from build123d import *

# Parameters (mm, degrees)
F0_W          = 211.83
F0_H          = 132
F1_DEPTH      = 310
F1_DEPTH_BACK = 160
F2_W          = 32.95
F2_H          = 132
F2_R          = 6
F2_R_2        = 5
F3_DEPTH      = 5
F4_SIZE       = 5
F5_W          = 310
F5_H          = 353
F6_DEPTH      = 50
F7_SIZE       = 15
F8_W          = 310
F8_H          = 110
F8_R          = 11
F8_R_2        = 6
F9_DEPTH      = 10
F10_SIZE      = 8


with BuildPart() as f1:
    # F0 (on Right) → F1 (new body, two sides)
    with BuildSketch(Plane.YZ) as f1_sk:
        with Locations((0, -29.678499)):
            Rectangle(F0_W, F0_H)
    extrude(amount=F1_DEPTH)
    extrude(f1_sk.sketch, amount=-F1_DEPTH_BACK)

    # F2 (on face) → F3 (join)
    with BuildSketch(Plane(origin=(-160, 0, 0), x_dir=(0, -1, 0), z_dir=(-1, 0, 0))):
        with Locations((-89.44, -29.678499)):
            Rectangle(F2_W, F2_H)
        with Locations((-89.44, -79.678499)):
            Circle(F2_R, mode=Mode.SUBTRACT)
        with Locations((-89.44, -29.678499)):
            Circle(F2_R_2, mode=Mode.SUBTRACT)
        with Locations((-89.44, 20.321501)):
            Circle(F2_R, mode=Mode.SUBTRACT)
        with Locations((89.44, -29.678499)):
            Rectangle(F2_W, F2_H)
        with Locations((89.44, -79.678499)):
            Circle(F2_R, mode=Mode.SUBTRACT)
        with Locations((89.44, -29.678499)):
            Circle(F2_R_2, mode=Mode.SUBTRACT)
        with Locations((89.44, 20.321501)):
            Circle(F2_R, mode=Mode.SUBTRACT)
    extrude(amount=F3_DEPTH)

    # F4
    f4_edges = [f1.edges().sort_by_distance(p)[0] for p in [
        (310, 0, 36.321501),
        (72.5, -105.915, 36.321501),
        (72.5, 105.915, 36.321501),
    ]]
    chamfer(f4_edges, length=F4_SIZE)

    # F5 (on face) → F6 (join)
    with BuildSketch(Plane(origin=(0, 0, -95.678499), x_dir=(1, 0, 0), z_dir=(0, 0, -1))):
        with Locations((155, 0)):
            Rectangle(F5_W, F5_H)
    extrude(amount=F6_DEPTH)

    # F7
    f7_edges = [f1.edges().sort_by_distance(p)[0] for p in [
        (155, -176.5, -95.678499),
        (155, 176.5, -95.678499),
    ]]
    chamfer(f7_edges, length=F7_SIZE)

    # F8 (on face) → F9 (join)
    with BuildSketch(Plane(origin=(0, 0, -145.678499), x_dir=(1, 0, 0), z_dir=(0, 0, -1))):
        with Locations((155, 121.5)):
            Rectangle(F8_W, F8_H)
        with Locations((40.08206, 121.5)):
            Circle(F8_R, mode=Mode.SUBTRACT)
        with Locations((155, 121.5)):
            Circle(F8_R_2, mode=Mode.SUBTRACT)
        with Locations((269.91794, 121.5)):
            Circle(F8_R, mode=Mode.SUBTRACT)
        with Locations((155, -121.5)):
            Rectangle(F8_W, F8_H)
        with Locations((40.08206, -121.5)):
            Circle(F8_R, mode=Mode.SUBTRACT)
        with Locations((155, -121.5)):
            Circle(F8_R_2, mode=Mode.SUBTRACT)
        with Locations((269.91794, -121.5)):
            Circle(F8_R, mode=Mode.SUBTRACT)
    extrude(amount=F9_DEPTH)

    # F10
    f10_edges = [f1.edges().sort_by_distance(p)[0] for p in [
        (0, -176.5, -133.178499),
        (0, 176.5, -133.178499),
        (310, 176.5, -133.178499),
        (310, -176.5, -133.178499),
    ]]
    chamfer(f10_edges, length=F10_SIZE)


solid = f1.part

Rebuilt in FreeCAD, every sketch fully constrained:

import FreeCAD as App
import Part
import Sketcher

V = App.Vector


def edges_at(feature, points):
    """Names of the edges that pass closest to the given points."""
    edges = feature.Shape.Edges
    near = lambda p: min(range(len(edges)), key=lambda i: edges[i].distToShape(Part.Vertex(*p))[0])
    return sorted({f"Edge{near(p) + 1}" for p in points})

doc = App.newDocument("Part")
body = doc.addObject("PartDesign::Body", "Body")

# Sketch on YZ plane
sketch1 = body.newObject("Sketcher::SketchObject", "Sketch")
sketch1.AttachmentSupport = (doc.getObject("YZ_Plane"), [""])
sketch1.MapMode = "FlatFace"
sketch1.addGeometry([
    Part.LineSegment(V(-105.915, 36.321501, 0), V(-105.915, -95.678499, 0)),
    Part.LineSegment(V(-105.915, -95.678499, 0), V(105.915, -95.678499, 0)),
    Part.LineSegment(V(105.915, -95.678499, 0), V(105.915, 36.321501, 0)),
    Part.LineSegment(V(105.915, 36.321501, 0), V(-105.915, 36.321501, 0)),
], False)
sketch1.addConstraint([
    Sketcher.Constraint("Coincident", 0, 2, 1, 1),
    Sketcher.Constraint("Coincident", 1, 2, 2, 1),
    Sketcher.Constraint("Coincident", 2, 2, 3, 1),
    Sketcher.Constraint("Coincident", 3, 2, 0, 1),
    Sketcher.Constraint("Vertical", 0),
    Sketcher.Constraint("Horizontal", 1),
    Sketcher.Constraint("Vertical", 2),
    Sketcher.Constraint("Horizontal", 3),
    Sketcher.Constraint("DistanceY", 0, 2, 0, 1, 132.0),
    Sketcher.Constraint("DistanceX", 1, 1, 1, 2, 211.83),
    Sketcher.Constraint("DistanceX", 0, 2, -1, 1, 105.915),
    Sketcher.Constraint("DistanceY", 0, 2, -1, 1, 95.678499),
])
pad1 = body.newObject("PartDesign::Pad", "Pad")
pad1.Profile = sketch1
pad1.Type = "TwoLengths"
pad1.Length = 310
pad1.Length2 = 160

# Sketch on YZ plane
sketch2 = body.newObject("Sketcher::SketchObject", "Sketch001")
sketch2.AttachmentSupport = (doc.getObject("YZ_Plane"), [""])
sketch2.MapMode = "FlatFace"
sketch2.AttachmentOffset = App.Placement(V(0, 0, -160), App.Rotation())
sketch2.addGeometry([
    Part.LineSegment(V(105.915, 36.321501, 0), V(105.915, -95.678499, 0)),  # 0
    Part.LineSegment(V(105.915, -95.678499, 0), V(72.965, -95.678499, 0)),  # 1
    Part.LineSegment(V(72.965, -95.678499, 0), V(72.965, 36.321501, 0)),  # 2
    Part.LineSegment(V(72.965, 36.321501, 0), V(105.915, 36.321501, 0)),  # 3
    Part.Circle(V(89.44, -79.678499, 0), V(0, 0, 1), 6),  # 4
    Part.Circle(V(89.44, -29.678499, 0), V(0, 0, 1), 5),  # 5
    Part.Circle(V(89.44, 20.321501, 0), V(0, 0, 1), 6),  # 6
    Part.LineSegment(V(-72.965, 36.321501, 0), V(-72.965, -95.678499, 0)),  # 7
    Part.LineSegment(V(-72.965, -95.678499, 0), V(-105.915, -95.678499, 0)),  # 8
    Part.LineSegment(V(-105.915, -95.678499, 0), V(-105.915, 36.321501, 0)),  # 9
    Part.LineSegment(V(-105.915, 36.321501, 0), V(-72.965, 36.321501, 0)),  # 10
    Part.Circle(V(-89.44, -79.678499, 0), V(0, 0, 1), 6),  # 11
    Part.Circle(V(-89.44, -29.678499, 0), V(0, 0, 1), 5),  # 12
    Part.Circle(V(-89.44, 20.321501, 0), V(0, 0, 1), 6),  # 13
], False)
sketch2.addConstraint([
    Sketcher.Constraint("Coincident", 0, 2, 1, 1),
    Sketcher.Constraint("Coincident", 1, 2, 2, 1),
    Sketcher.Constraint("Coincident", 2, 2, 3, 1),
    Sketcher.Constraint("Coincident", 3, 2, 0, 1),
    Sketcher.Constraint("Coincident", 7, 2, 8, 1),
    Sketcher.Constraint("Coincident", 8, 2, 9, 1),
    Sketcher.Constraint("Coincident", 9, 2, 10, 1),
    Sketcher.Constraint("Coincident", 10, 2, 7, 1),
    Sketcher.Constraint("Vertical", 0),
    Sketcher.Constraint("Horizontal", 1),
    Sketcher.Constraint("Vertical", 2),
    Sketcher.Constraint("Horizontal", 3),
    Sketcher.Constraint("Vertical", 7),
    Sketcher.Constraint("Horizontal", 8),
    Sketcher.Constraint("Vertical", 9),
    Sketcher.Constraint("Horizontal", 10),
    Sketcher.Constraint("Equal", 4, 6),
    Sketcher.Constraint("Equal", 6, 11),
    Sketcher.Constraint("Equal", 5, 12),
    Sketcher.Constraint("Equal", 11, 13),
    Sketcher.Constraint("Symmetric", 4, 3, 11, 3, -2),
    Sketcher.Constraint("Symmetric", 5, 3, 12, 3, -2),
    Sketcher.Constraint("Symmetric", 6, 3, 13, 3, -2),
    Sketcher.Constraint("Symmetric", 1, 2, 7, 2, -2),
    Sketcher.Constraint("Symmetric", 3, 2, 9, 2, -2),
    Sketcher.Constraint("Vertical", 4, 3, 5, 3),
    Sketcher.Constraint("Vertical", 5, 3, 6, 3),
    Sketcher.Constraint("Diameter", 4, 12.0),
    Sketcher.Constraint("Diameter", 5, 10.0),
    Sketcher.Constraint("DistanceY", 0, 2, 0, 1, 132.0),
    Sketcher.Constraint("DistanceY", 4, 3, 5, 3, 50.0),
    Sketcher.Constraint("DistanceY", 5, 3, 6, 3, 50.0),
    Sketcher.Constraint("DistanceY", 0, 2, 4, 3, 16.0),
    Sketcher.Constraint("DistanceX", 1, 2, 1, 1, 32.95),
    Sketcher.Constraint("DistanceX", -1, 1, 4, 3, 89.44),
    Sketcher.Constraint("DistanceX", 7, 2, 1, 2, 145.93),
    Sketcher.Constraint("DistanceY", 4, 3, -1, 1, 79.678499),
])
pad2 = body.newObject("PartDesign::Pad", "Pad001")
pad2.Profile = sketch2
pad2.Length = 5
pad2.Reversed = True
doc.recompute()

chamfer = body.newObject("PartDesign::Chamfer", "Chamfer")
chamfer.Base = (pad2, edges_at(pad2, [(310, 0, 36.322), (72.5, -105.915, 36.322), (72.5, 105.915, 36.322)]))
chamfer.Size = 5

# Sketch on XY plane
sketch3 = body.newObject("Sketcher::SketchObject", "Sketch002")
sketch3.AttachmentSupport = (doc.getObject("XY_Plane"), [""])
sketch3.MapMode = "FlatFace"
sketch3.AttachmentOffset = App.Placement(V(0, 0, -95.678499), App.Rotation())
sketch3.addGeometry([
    Part.LineSegment(V(0, -176.5, 0), V(0, 176.5, 0)),
    Part.LineSegment(V(0, 176.5, 0), V(310, 176.5, 0)),
    Part.LineSegment(V(310, 176.5, 0), V(310, -176.5, 0)),
    Part.LineSegment(V(310, -176.5, 0), V(0, -176.5, 0)),
], False)
sketch3.addConstraint([
    Sketcher.Constraint("Coincident", 0, 2, 1, 1),
    Sketcher.Constraint("Coincident", 1, 2, 2, 1),
    Sketcher.Constraint("Coincident", 2, 2, 3, 1),
    Sketcher.Constraint("Coincident", 3, 2, 0, 1),
    Sketcher.Constraint("Vertical", 0),
    Sketcher.Constraint("Horizontal", 1),
    Sketcher.Constraint("Vertical", 2),
    Sketcher.Constraint("Horizontal", 3),
    Sketcher.Constraint("Symmetric", 0, 2, 3, 2, -1, 1),
    Sketcher.Constraint("DistanceX", 1, 1, 1, 2, 310.0),
    Sketcher.Constraint("DistanceY", 0, 1, 0, 2, 353.0),
])
pad3 = body.newObject("PartDesign::Pad", "Pad002")
pad3.Profile = sketch3
pad3.Length = 50
pad3.Reversed = True
doc.recompute()

chamfer2 = body.newObject("PartDesign::Chamfer", "Chamfer001")
chamfer2.Base = (pad3, edges_at(pad3, [(155, -176.5, -95.678), (155, 176.5, -95.678)]))
chamfer2.Size = 15

# Sketch on XY plane
sketch4 = body.newObject("Sketcher::SketchObject", "Sketch003")
sketch4.AttachmentSupport = (doc.getObject("XY_Plane"), [""])
sketch4.MapMode = "FlatFace"
sketch4.AttachmentOffset = App.Placement(V(0, 0, -145.678499), App.Rotation())
sketch4.addGeometry([
    Part.LineSegment(V(0, -176.5, 0), V(0, -66.5, 0)),  # 0
    Part.LineSegment(V(0, -66.5, 0), V(310, -66.5, 0)),  # 1
    Part.LineSegment(V(310, -66.5, 0), V(310, -176.5, 0)),  # 2
    Part.LineSegment(V(310, -176.5, 0), V(0, -176.5, 0)),  # 3
    Part.Circle(V(40.08206, -121.5, 0), V(0, 0, 1), 11),  # 4
    Part.Circle(V(155, -121.5, 0), V(0, 0, 1), 6),  # 5
    Part.Circle(V(269.91794, -121.5, 0), V(0, 0, 1), 11),  # 6
    Part.LineSegment(V(0, 66.5, 0), V(0, 176.5, 0)),  # 7
    Part.LineSegment(V(0, 176.5, 0), V(310, 176.5, 0)),  # 8
    Part.LineSegment(V(310, 176.5, 0), V(310, 66.5, 0)),  # 9
    Part.LineSegment(V(310, 66.5, 0), V(0, 66.5, 0)),  # 10
    Part.Circle(V(40.08206, 121.5, 0), V(0, 0, 1), 11),  # 11
    Part.Circle(V(155, 121.5, 0), V(0, 0, 1), 6),  # 12
    Part.Circle(V(269.91794, 121.5, 0), V(0, 0, 1), 11),  # 13
], False)
sketch4.addConstraint([
    Sketcher.Constraint("Coincident", 0, 2, 1, 1),
    Sketcher.Constraint("Coincident", 1, 2, 2, 1),
    Sketcher.Constraint("Coincident", 2, 2, 3, 1),
    Sketcher.Constraint("Coincident", 3, 2, 0, 1),
    Sketcher.Constraint("Coincident", 7, 2, 8, 1),
    Sketcher.Constraint("Coincident", 8, 2, 9, 1),
    Sketcher.Constraint("Coincident", 9, 2, 10, 1),
    Sketcher.Constraint("Coincident", 10, 2, 7, 1),
    Sketcher.Constraint("Vertical", 0),
    Sketcher.Constraint("Horizontal", 1),
    Sketcher.Constraint("Vertical", 2),
    Sketcher.Constraint("Horizontal", 3),
    Sketcher.Constraint("Vertical", 7),
    Sketcher.Constraint("Horizontal", 8),
    Sketcher.Constraint("Vertical", 9),
    Sketcher.Constraint("Horizontal", 10),
    Sketcher.Constraint("Equal", 4, 6),
    Sketcher.Constraint("Equal", 6, 11),
    Sketcher.Constraint("Equal", 5, 12),
    Sketcher.Constraint("Equal", 11, 13),
    Sketcher.Constraint("Symmetric", 3, 2, 7, 2, -1, 1),
    Sketcher.Constraint("Symmetric", 4, 3, 11, 3, -1),
    Sketcher.Constraint("Symmetric", 5, 3, 12, 3, -1),
    Sketcher.Constraint("Symmetric", 6, 3, 13, 3, -1),
    Sketcher.Constraint("Symmetric", 1, 2, 9, 2, -1),
    Sketcher.Constraint("PointOnObject", 0, 2, -2),
    Sketcher.Constraint("Horizontal", 4, 3, 5, 3),
    Sketcher.Constraint("Horizontal", 5, 3, 6, 3),
    Sketcher.Constraint("Diameter", 4, 22.0),
    Sketcher.Constraint("Diameter", 5, 12.0),
    Sketcher.Constraint("DistanceX", 1, 1, 1, 2, 310.0),
    Sketcher.Constraint("DistanceY", 0, 1, 0, 2, 110.0),
    Sketcher.Constraint("DistanceX", -1, 1, 5, 3, 155.0),
    Sketcher.Constraint("DistanceY", 4, 3, 11, 3, 243.0),
    Sketcher.Constraint("DistanceY", 4, 3, 0, 2, 55.0),
    Sketcher.Constraint("DistanceX", -1, 1, 4, 3, 40.08206),
    Sketcher.Constraint("DistanceX", -1, 1, 6, 3, 269.91794),
])
pad4 = body.newObject("PartDesign::Pad", "Pad003")
pad4.Profile = sketch4
pad4.Length = 10
pad4.Reversed = True
doc.recompute()

chamfer3 = body.newObject("PartDesign::Chamfer", "Chamfer002")
chamfer3.Base = (pad4, edges_at(pad4, [
    (0, -176.5, -133.178),
    (0, 176.5, -133.178),
    (310, 176.5, -133.178),
    (310, -176.5, -133.178),
]))
chamfer3.Size = 8

doc.recompute()
